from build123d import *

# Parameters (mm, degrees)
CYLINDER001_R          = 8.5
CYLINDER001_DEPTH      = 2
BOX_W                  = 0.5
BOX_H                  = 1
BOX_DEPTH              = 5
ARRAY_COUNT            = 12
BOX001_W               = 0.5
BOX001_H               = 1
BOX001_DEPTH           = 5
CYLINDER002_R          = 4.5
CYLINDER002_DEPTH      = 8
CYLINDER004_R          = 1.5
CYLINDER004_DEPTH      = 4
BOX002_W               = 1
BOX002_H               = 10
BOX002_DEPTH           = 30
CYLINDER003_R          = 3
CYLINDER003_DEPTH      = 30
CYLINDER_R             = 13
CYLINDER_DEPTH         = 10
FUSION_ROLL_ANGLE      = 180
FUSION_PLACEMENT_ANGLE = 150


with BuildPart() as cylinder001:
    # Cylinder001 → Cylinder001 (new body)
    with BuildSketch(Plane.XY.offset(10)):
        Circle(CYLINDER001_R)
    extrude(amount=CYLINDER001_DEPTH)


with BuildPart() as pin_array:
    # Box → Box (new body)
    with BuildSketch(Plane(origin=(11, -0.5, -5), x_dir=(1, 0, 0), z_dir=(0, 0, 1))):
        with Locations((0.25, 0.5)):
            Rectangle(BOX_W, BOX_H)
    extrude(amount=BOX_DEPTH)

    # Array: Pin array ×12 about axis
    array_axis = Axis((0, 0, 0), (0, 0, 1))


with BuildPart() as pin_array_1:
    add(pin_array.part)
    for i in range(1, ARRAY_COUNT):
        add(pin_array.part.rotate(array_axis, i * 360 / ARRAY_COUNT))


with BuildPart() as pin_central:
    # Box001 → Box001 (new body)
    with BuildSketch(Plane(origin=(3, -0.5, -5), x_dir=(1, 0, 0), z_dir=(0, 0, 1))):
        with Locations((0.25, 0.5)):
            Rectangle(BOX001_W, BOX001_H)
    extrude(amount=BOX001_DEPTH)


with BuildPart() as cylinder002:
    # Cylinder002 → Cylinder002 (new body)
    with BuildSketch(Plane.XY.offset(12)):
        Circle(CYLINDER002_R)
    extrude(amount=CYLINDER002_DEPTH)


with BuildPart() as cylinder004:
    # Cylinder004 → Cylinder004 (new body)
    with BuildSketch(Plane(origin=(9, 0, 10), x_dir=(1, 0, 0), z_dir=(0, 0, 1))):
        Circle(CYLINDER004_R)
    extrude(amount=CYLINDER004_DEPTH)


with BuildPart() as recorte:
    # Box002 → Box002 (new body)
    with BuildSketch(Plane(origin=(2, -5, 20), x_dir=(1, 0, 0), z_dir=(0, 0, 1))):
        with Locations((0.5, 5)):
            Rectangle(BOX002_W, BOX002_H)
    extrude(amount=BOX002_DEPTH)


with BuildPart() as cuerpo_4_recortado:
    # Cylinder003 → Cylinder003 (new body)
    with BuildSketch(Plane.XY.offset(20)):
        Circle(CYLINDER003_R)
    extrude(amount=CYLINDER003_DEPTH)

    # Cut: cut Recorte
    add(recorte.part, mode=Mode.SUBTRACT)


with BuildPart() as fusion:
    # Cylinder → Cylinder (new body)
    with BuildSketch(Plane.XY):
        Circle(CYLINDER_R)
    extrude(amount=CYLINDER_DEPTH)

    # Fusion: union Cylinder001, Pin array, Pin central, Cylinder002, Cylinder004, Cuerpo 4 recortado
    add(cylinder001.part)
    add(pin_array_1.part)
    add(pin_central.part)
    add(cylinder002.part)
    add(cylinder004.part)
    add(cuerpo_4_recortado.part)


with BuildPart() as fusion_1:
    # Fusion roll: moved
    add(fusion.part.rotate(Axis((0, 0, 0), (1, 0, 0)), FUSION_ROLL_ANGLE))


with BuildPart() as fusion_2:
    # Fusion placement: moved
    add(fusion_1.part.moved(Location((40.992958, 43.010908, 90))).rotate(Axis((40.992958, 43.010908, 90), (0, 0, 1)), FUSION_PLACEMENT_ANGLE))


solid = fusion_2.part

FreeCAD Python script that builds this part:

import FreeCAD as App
import Part
import Sketcher
Q = App.Units.Quantity


def add_polygon(sketch, points):
    """Adds a closed chain of lines whose ends are joined by coincident constraints."""
    first, n = sketch.GeometryCount, len(points)
    for a, b in zip(points, points[1:] + points[:1]):
        sketch.addGeometry(Part.LineSegment(App.Vector(*a, 0), App.Vector(*b, 0)), False)
    for i in range(n):
        sketch.addConstraint(Sketcher.Constraint("Coincident", first + i, 2, first + (i + 1) % n, 1))

doc = App.newDocument("Part")
params = doc.addObject("Spreadsheet::Sheet", "Params")
for row, (alias, value) in enumerate([
    ("sketch1_diameter", "17 mm"),
    ("pad1_length", "2 mm"),
    ("sketch2_height", "1 mm"),
    ("sketch2_width", "0.5 mm"),
    ("pad2_length", "5 mm"),
    ("sketch3_height", "1 mm"),
    ("sketch3_width", "0.5 mm"),
    ("pad3_length", "5 mm"),
    ("sketch4_diameter", "9 mm"),
    ("pad4_length", "8 mm"),
    ("sketch5_diameter", "3 mm"),
    ("pad5_length", "4 mm"),
    ("sketch6_width", "1 mm"),
    ("sketch6_height", "10 mm"),
    ("pad6_length", "30 mm"),
    ("sketch7_diameter", "6 mm"),
    ("pad7_length", "30 mm"),
    ("sketch8_diameter", "26 mm"),
    ("pad8_length", "10 mm"),
], start=1):
    params.set(f"A{row}", alias)
    params.set(f"B{row}", "=" + value)
    params.setAlias(f"B{row}", alias)

body = doc.addObject("PartDesign::Body", "Body")

sketch1 = body.newObject("Sketcher::SketchObject", "Sketch")
sketch1.AttachmentSupport = (doc.getObject("XY_Plane"), [""])
sketch1.MapMode = "FlatFace"
sketch1.AttachmentOffset = App.Placement(App.Vector(0, 0, 10), App.Rotation())
sketch1.addGeometry(Part.Circle(App.Vector(0, 0, 0), App.Vector(0, 0, 1), 8), False)
sketch1.addConstraint([
    Sketcher.Constraint("Coincident", 0, 3, -1, 1),
    Sketcher.Constraint("Diameter", 0, Q("17 mm")),
])
sketch1.setExpression("Constraints[1]", "Params.sketch1_diameter")
pad1 = body.newObject("PartDesign::Pad", "Pad")
pad1.Profile = sketch1
pad1.setExpression("Length", "Params.pad1_length")
body2 = doc.addObject("PartDesign::Body", "Body001")

sketch2 = body2.newObject("Sketcher::SketchObject", "Sketch001")
sketch2.AttachmentSupport = (doc.getObject("XY_Plane001"), [""])
sketch2.MapMode = "FlatFace"
sketch2.AttachmentOffset = App.Placement(App.Vector(0, 0, -5), App.Rotation())
add_polygon(sketch2, [(11, 0.5), (11, -0.5), (11.5, -0.5), (11.5, 0.5)])
sketch2.addConstraint([
    Sketcher.Constraint("Vertical", 0),
    Sketcher.Constraint("Horizontal", 1),
    Sketcher.Constraint("Vertical", 2),
    Sketcher.Constraint("Horizontal", 3),
    Sketcher.Constraint("DistanceY", 0, 2, 0, 1, Q("1 mm")),
    Sketcher.Constraint("DistanceX", 1, 1, 1, 2, Q("0.5 mm")),
    Sketcher.Constraint("DistanceX", -1, 1, 0, 2, Q("11 mm")),
    Sketcher.Constraint("DistanceY", 0, 2, -1, 1, Q("0.5 mm")),
])
sketch2.setExpression("Constraints[8]", "Params.sketch2_height")
sketch2.setExpression("Constraints[9]", "Params.sketch2_width")
pad2 = body2.newObject("PartDesign::Pad", "Pad001")
pad2.Profile = sketch2
pad2.setExpression("Length", "Params.pad2_length")
body3 = doc.addObject("PartDesign::Body", "Body002")
body3.AllowCompound = True
doc.recompute()

body3.BaseFeature = body2
doc.recompute()

body4 = doc.addObject("PartDesign::Body", "Body003")
body4.BaseFeature = body2
body4.Placement = App.Placement(App.Vector(0, 0, 0), App.Rotation(App.Vector(0, 0, 1), 30))
boolean = body3.newObject("PartDesign::Boolean", "Boolean")
boolean.Type = "Fuse"
boolean.addObjects([body4])
doc.recompute()

body5 = doc.addObject("PartDesign::Body", "Body004")
body5.BaseFeature = body2
body5.Placement = App.Placement(App.Vector(0, 0, 0), App.Rotation(App.Vector(0, 0, 1), 60))
boolean2 = body3.newObject("PartDesign::Boolean", "Boolean001")
boolean2.Type = "Fuse"
boolean2.addObjects([body5])
doc.recompute()

body6 = doc.addObject("PartDesign::Body", "Body005")
body6.BaseFeature = body2
body6.Placement = App.Placement(App.Vector(0, 0, 0), App.Rotation(App.Vector(0, 0, 1), 90))
boolean3 = body3.newObject("PartDesign::Boolean", "Boolean002")
boolean3.Type = "Fuse"
boolean3.addObjects([body6])
doc.recompute()

body7 = doc.addObject("PartDesign::Body", "Body006")
body7.BaseFeature = body2
body7.Placement = App.Placement(App.Vector(0, 0, 0), App.Rotation(App.Vector(0, 0, 1), 120))
boolean4 = body3.newObject("PartDesign::Boolean", "Boolean003")
boolean4.Type = "Fuse"
boolean4.addObjects([body7])
doc.recompute()

body8 = doc.addObject("PartDesign::Body", "Body007")
body8.BaseFeature = body2
body8.Placement = App.Placement(App.Vector(0, 0, 0), App.Rotation(App.Vector(0, 0, 1), 150))
boolean5 = body3.newObject("PartDesign::Boolean", "Boolean004")
boolean5.Type = "Fuse"
boolean5.addObjects([body8])
doc.recompute()

body9 = doc.addObject("PartDesign::Body", "Body008")
body9.BaseFeature = body2
body9.Placement = App.Placement(App.Vector(0, 0, 0), App.Rotation(App.Vector(0, 0, 1), 180))
boolean6 = body3.newObject("PartDesign::Boolean", "Boolean005")
boolean6.Type = "Fuse"
boolean6.addObjects([body9])
doc.recompute()

body10 = doc.addObject("PartDesign::Body", "Body009")
body10.BaseFeature = body2
body10.Placement = App.Placement(App.Vector(0, 0, 0), App.Rotation(App.Vector(0, 0, 1), 210))
boolean7 = body3.newObject("PartDesign::Boolean", "Boolean006")
boolean7.Type = "Fuse"
boolean7.addObjects([body10])
doc.recompute()

body11 = doc.addObject("PartDesign::Body", "Body010")
body11.BaseFeature = body2
body11.Placement = App.Placement(App.Vector(0, 0, 0), App.Rotation(App.Vector(0, 0, 1), 240))
boolean8 = body3.newObject("PartDesign::Boolean", "Boolean007")
boolean8.Type = "Fuse"
boolean8.addObjects([body11])
doc.recompute()

body12 = doc.addObject("PartDesign::Body", "Body011")
body12.BaseFeature = body2
body12.Placement = App.Placement(App.Vector(0, 0, 0), App.Rotation(App.Vector(0, 0, 1), 270))
boolean9 = body3.newObject("PartDesign::Boolean", "Boolean008")
boolean9.Type = "Fuse"
boolean9.addObjects([body12])
doc.recompute()

body13 = doc.addObject("PartDesign::Body", "Body012")
body13.BaseFeature = body2
body13.Placement = App.Placement(App.Vector(0, 0, 0), App.Rotation(App.Vector(0, 0, 1), 300))
boolean10 = body3.newObject("PartDesign::Boolean", "Boolean009")
boolean10.Type = "Fuse"
boolean10.addObjects([body13])
doc.recompute()

body2.Placement = App.Placement(App.Vector(0, 0, 0), App.Rotation(App.Vector(0, 0, 1), 330))
boolean11 = body3.newObject("PartDesign::Boolean", "Boolean010")
boolean11.Type = "Fuse"
boolean11.addObjects([body2])
body14 = doc.addObject("PartDesign::Body", "Body013")

sketch3 = body14.newObject("Sketcher::SketchObject", "Sketch002")
sketch3.AttachmentSupport = (doc.getObject("XY_Plane013"), [""])
sketch3.MapMode = "FlatFace"
sketch3.AttachmentOffset = App.Placement(App.Vector(0, 0, -5), App.Rotation())
add_polygon(sketch3, [(3, 0.5), (3, -0.5), (3.5, -0.5), (3.5, 0.5)])
sketch3.addConstraint([
    Sketcher.Constraint("Vertical", 0),
    Sketcher.Constraint("Horizontal", 1),
    Sketcher.Constraint("Vertical", 2),
    Sketcher.Constraint("Horizontal", 3),
    Sketcher.Constraint("DistanceY", 0, 2, 0, 1, Q("1 mm")),
    Sketcher.Constraint("DistanceX", 1, 1, 1, 2, Q("0.5 mm")),
    Sketcher.Constraint("DistanceX", -1, 1, 0, 2, Q("3 mm")),
    Sketcher.Constraint("DistanceY", 0, 2, -1, 1, Q("0.5 mm")),
])
sketch3.setExpression("Constraints[8]", "Params.sketch3_height")
sketch3.setExpression("Constraints[9]", "Params.sketch3_width")
pad3 = body14.newObject("PartDesign::Pad", "Pad002")
pad3.Profile = sketch3
pad3.setExpression("Length", "Params.pad3_length")
body15 = doc.addObject("PartDesign::Body", "Body014")

sketch4 = body15.newObject("Sketcher::SketchObject", "Sketch003")
sketch4.AttachmentSupport = (doc.getObject("XY_Plane014"), [""])
sketch4.MapMode = "FlatFace"
sketch4.AttachmentOffset = App.Placement(App.Vector(0, 0, 12), App.Rotation())
sketch4.addGeometry(Part.Circle(App.Vector(0, 0, 0), App.Vector(0, 0, 1), 4.5), False)
sketch4.addConstraint([
    Sketcher.Constraint("Coincident", 0, 3, -1, 1),
    Sketcher.Constraint("Diameter", 0, Q("9 mm")),
])
sketch4.setExpression("Constraints[1]", "Params.sketch4_diameter")
pad4 = body15.newObject("PartDesign::Pad", "Pad003")
pad4.Profile = sketch4
pad4.setExpression("Length", "Params.pad4_length")
body16 = doc.addObject("PartDesign::Body", "Body015")

sketch5 = body16.newObject("Sketcher::SketchObject", "Sketch004")
sketch5.AttachmentSupport = (doc.getObject("XY_Plane015"), [""])
sketch5.MapMode = "FlatFace"
sketch5.AttachmentOffset = App.Placement(App.Vector(0, 0, 10), App.Rotation())
sketch5.addGeometry(Part.Circle(App.Vector(9, 0, 0), App.Vector(0, 0, 1), 1.5), False)
sketch5.addConstraint([
    Sketcher.Constraint("PointOnObject", 0, 3, -1),
    Sketcher.Constraint("Diameter", 0, Q("3 mm")),
    Sketcher.Constraint("DistanceX", -1, 1, 0, 3, Q("9 mm")),
])
sketch5.setExpression("Constraints[1]", "Params.sketch5_diameter")
pad5 = body16.newObject("PartDesign::Pad", "Pad004")
pad5.Profile = sketch5
pad5.setExpression("Length", "Params.pad5_length")
body17 = doc.addObject("PartDesign::Body", "Body016")

sketch6 = body17.newObject("Sketcher::SketchObject", "Sketch005")
sketch6.AttachmentSupport = (doc.getObject("XY_Plane016"), [""])
sketch6.MapMode = "FlatFace"
sketch6.AttachmentOffset = App.Placement(App.Vector(0, 0, 20), App.Rotation())
add_polygon(sketch6, [(2, 5), (2, -5), (3, -5), (3, 5)])
sketch6.addConstraint([
    Sketcher.Constraint("Vertical", 0),
    Sketcher.Constraint("Horizontal", 1),
    Sketcher.Constraint("Vertical", 2),
    Sketcher.Constraint("Horizontal", 3),
    Sketcher.Constraint("DistanceX", 1, 1, 1, 2, Q("1 mm")),
    Sketcher.Constraint("DistanceY", 0, 2, 0, 1, Q("10 mm")),
    Sketcher.Constraint("DistanceX", -1, 1, 0, 2, Q("2 mm")),
    Sketcher.Constraint("DistanceY", 0, 2, -1, 1, Q("5 mm")),
])
sketch6.setExpression("Constraints[8]", "Params.sketch6_width")
sketch6.setExpression("Constraints[9]", "Params.sketch6_height")
pad6 = body17.newObject("PartDesign::Pad", "Pad005")
pad6.Profile = sketch6
pad6.setExpression("Length", "Params.pad6_length")
body18 = doc.addObject("PartDesign::Body", "Body017")

sketch7 = body18.newObject("Sketcher::SketchObject", "Sketch006")
sketch7.AttachmentSupport = (doc.getObject("XY_Plane017"), [""])
sketch7.MapMode = "FlatFace"
sketch7.AttachmentOffset = App.Placement(App.Vector(0, 0, 20), App.Rotation())
sketch7.addGeometry(Part.Circle(App.Vector(0, 0, 0), App.Vector(0, 0, 1), 3), False)
sketch7.addConstraint([
    Sketcher.Constraint("Coincident", 0, 3, -1, 1),
    Sketcher.Constraint("Diameter", 0, Q("6 mm")),
])
sketch7.setExpression("Constraints[1]", "Params.sketch7_diameter")
pad7 = body18.newObject("PartDesign::Pad", "Pad006")
pad7.Profile = sketch7
pad7.setExpression("Length", "Params.pad7_length")
doc.recompute()

boolean12 = body18.newObject("PartDesign::Boolean", "Boolean011")
boolean12.Type = "Cut"
boolean12.addObjects([body17])
body19 = doc.addObject("PartDesign::Body", "Body018")

sketch8 = body19.newObject("Sketcher::SketchObject", "Sketch007")
sketch8.AttachmentSupport = (doc.getObject("XY_Plane018"), [""])
sketch8.MapMode = "FlatFace"
sketch8.addGeometry(Part.Circle(App.Vector(0, 0, 0), App.Vector(0, 0, 1), 13), False)
sketch8.addConstraint([
    Sketcher.Constraint("Coincident", 0, 3, -1, 1),
    Sketcher.Constraint("Diameter", 0, Q("26 mm")),
])
sketch8.setExpression("Constraints[1]", "Params.sketch8_diameter")
pad8 = body19.newObject("PartDesign::Pad", "Pad007")
pad8.Profile = sketch8
pad8.setExpression("Length", "Params.pad8_length")
doc.recompute()

boolean13 = body19.newObject("PartDesign::Boolean", "Boolean012")
boolean13.Type = "Fuse"
boolean13.addObjects([body])
doc.recompute()

boolean14 = body19.newObject("PartDesign::Boolean", "Boolean013")
boolean14.Type = "Fuse"
boolean14.addObjects([body3])
doc.recompute()

boolean15 = body19.newObject("PartDesign::Boolean", "Boolean014")
boolean15.Type = "Fuse"
boolean15.addObjects([body14])
doc.recompute()

boolean16 = body19.newObject("PartDesign::Boolean", "Boolean015")
boolean16.Type = "Fuse"
boolean16.addObjects([body15])
doc.recompute()

boolean17 = body19.newObject("PartDesign::Boolean", "Boolean016")
boolean17.Type = "Fuse"
boolean17.addObjects([body16])
doc.recompute()

boolean18 = body19.newObject("PartDesign::Boolean", "Boolean017")
boolean18.Type = "Fuse"
boolean18.addObjects([body18])
body20 = doc.addObject("PartDesign::Body", "Body019")
doc.recompute()

body19.Placement = App.Placement(App.Vector(0, 0, 0), App.Rotation(App.Vector(1, 0, 0), 180))
boolean19 = body20.newObject("PartDesign::Boolean", "Boolean018")
boolean19.Type = "Fuse"
boolean19.addObjects([body19])
body21 = doc.addObject("PartDesign::Body", "Body020")
doc.recompute()

body20.Placement = App.Placement(App.Vector(40.992958, 43.010908, 90), App.Rotation(App.Vector(0, 0, 1), 150))
boolean20 = body21.newObject("PartDesign::Boolean", "Boolean019")
boolean20.Type = "Fuse"
boolean20.addObjects([body20])

doc.recompute()
